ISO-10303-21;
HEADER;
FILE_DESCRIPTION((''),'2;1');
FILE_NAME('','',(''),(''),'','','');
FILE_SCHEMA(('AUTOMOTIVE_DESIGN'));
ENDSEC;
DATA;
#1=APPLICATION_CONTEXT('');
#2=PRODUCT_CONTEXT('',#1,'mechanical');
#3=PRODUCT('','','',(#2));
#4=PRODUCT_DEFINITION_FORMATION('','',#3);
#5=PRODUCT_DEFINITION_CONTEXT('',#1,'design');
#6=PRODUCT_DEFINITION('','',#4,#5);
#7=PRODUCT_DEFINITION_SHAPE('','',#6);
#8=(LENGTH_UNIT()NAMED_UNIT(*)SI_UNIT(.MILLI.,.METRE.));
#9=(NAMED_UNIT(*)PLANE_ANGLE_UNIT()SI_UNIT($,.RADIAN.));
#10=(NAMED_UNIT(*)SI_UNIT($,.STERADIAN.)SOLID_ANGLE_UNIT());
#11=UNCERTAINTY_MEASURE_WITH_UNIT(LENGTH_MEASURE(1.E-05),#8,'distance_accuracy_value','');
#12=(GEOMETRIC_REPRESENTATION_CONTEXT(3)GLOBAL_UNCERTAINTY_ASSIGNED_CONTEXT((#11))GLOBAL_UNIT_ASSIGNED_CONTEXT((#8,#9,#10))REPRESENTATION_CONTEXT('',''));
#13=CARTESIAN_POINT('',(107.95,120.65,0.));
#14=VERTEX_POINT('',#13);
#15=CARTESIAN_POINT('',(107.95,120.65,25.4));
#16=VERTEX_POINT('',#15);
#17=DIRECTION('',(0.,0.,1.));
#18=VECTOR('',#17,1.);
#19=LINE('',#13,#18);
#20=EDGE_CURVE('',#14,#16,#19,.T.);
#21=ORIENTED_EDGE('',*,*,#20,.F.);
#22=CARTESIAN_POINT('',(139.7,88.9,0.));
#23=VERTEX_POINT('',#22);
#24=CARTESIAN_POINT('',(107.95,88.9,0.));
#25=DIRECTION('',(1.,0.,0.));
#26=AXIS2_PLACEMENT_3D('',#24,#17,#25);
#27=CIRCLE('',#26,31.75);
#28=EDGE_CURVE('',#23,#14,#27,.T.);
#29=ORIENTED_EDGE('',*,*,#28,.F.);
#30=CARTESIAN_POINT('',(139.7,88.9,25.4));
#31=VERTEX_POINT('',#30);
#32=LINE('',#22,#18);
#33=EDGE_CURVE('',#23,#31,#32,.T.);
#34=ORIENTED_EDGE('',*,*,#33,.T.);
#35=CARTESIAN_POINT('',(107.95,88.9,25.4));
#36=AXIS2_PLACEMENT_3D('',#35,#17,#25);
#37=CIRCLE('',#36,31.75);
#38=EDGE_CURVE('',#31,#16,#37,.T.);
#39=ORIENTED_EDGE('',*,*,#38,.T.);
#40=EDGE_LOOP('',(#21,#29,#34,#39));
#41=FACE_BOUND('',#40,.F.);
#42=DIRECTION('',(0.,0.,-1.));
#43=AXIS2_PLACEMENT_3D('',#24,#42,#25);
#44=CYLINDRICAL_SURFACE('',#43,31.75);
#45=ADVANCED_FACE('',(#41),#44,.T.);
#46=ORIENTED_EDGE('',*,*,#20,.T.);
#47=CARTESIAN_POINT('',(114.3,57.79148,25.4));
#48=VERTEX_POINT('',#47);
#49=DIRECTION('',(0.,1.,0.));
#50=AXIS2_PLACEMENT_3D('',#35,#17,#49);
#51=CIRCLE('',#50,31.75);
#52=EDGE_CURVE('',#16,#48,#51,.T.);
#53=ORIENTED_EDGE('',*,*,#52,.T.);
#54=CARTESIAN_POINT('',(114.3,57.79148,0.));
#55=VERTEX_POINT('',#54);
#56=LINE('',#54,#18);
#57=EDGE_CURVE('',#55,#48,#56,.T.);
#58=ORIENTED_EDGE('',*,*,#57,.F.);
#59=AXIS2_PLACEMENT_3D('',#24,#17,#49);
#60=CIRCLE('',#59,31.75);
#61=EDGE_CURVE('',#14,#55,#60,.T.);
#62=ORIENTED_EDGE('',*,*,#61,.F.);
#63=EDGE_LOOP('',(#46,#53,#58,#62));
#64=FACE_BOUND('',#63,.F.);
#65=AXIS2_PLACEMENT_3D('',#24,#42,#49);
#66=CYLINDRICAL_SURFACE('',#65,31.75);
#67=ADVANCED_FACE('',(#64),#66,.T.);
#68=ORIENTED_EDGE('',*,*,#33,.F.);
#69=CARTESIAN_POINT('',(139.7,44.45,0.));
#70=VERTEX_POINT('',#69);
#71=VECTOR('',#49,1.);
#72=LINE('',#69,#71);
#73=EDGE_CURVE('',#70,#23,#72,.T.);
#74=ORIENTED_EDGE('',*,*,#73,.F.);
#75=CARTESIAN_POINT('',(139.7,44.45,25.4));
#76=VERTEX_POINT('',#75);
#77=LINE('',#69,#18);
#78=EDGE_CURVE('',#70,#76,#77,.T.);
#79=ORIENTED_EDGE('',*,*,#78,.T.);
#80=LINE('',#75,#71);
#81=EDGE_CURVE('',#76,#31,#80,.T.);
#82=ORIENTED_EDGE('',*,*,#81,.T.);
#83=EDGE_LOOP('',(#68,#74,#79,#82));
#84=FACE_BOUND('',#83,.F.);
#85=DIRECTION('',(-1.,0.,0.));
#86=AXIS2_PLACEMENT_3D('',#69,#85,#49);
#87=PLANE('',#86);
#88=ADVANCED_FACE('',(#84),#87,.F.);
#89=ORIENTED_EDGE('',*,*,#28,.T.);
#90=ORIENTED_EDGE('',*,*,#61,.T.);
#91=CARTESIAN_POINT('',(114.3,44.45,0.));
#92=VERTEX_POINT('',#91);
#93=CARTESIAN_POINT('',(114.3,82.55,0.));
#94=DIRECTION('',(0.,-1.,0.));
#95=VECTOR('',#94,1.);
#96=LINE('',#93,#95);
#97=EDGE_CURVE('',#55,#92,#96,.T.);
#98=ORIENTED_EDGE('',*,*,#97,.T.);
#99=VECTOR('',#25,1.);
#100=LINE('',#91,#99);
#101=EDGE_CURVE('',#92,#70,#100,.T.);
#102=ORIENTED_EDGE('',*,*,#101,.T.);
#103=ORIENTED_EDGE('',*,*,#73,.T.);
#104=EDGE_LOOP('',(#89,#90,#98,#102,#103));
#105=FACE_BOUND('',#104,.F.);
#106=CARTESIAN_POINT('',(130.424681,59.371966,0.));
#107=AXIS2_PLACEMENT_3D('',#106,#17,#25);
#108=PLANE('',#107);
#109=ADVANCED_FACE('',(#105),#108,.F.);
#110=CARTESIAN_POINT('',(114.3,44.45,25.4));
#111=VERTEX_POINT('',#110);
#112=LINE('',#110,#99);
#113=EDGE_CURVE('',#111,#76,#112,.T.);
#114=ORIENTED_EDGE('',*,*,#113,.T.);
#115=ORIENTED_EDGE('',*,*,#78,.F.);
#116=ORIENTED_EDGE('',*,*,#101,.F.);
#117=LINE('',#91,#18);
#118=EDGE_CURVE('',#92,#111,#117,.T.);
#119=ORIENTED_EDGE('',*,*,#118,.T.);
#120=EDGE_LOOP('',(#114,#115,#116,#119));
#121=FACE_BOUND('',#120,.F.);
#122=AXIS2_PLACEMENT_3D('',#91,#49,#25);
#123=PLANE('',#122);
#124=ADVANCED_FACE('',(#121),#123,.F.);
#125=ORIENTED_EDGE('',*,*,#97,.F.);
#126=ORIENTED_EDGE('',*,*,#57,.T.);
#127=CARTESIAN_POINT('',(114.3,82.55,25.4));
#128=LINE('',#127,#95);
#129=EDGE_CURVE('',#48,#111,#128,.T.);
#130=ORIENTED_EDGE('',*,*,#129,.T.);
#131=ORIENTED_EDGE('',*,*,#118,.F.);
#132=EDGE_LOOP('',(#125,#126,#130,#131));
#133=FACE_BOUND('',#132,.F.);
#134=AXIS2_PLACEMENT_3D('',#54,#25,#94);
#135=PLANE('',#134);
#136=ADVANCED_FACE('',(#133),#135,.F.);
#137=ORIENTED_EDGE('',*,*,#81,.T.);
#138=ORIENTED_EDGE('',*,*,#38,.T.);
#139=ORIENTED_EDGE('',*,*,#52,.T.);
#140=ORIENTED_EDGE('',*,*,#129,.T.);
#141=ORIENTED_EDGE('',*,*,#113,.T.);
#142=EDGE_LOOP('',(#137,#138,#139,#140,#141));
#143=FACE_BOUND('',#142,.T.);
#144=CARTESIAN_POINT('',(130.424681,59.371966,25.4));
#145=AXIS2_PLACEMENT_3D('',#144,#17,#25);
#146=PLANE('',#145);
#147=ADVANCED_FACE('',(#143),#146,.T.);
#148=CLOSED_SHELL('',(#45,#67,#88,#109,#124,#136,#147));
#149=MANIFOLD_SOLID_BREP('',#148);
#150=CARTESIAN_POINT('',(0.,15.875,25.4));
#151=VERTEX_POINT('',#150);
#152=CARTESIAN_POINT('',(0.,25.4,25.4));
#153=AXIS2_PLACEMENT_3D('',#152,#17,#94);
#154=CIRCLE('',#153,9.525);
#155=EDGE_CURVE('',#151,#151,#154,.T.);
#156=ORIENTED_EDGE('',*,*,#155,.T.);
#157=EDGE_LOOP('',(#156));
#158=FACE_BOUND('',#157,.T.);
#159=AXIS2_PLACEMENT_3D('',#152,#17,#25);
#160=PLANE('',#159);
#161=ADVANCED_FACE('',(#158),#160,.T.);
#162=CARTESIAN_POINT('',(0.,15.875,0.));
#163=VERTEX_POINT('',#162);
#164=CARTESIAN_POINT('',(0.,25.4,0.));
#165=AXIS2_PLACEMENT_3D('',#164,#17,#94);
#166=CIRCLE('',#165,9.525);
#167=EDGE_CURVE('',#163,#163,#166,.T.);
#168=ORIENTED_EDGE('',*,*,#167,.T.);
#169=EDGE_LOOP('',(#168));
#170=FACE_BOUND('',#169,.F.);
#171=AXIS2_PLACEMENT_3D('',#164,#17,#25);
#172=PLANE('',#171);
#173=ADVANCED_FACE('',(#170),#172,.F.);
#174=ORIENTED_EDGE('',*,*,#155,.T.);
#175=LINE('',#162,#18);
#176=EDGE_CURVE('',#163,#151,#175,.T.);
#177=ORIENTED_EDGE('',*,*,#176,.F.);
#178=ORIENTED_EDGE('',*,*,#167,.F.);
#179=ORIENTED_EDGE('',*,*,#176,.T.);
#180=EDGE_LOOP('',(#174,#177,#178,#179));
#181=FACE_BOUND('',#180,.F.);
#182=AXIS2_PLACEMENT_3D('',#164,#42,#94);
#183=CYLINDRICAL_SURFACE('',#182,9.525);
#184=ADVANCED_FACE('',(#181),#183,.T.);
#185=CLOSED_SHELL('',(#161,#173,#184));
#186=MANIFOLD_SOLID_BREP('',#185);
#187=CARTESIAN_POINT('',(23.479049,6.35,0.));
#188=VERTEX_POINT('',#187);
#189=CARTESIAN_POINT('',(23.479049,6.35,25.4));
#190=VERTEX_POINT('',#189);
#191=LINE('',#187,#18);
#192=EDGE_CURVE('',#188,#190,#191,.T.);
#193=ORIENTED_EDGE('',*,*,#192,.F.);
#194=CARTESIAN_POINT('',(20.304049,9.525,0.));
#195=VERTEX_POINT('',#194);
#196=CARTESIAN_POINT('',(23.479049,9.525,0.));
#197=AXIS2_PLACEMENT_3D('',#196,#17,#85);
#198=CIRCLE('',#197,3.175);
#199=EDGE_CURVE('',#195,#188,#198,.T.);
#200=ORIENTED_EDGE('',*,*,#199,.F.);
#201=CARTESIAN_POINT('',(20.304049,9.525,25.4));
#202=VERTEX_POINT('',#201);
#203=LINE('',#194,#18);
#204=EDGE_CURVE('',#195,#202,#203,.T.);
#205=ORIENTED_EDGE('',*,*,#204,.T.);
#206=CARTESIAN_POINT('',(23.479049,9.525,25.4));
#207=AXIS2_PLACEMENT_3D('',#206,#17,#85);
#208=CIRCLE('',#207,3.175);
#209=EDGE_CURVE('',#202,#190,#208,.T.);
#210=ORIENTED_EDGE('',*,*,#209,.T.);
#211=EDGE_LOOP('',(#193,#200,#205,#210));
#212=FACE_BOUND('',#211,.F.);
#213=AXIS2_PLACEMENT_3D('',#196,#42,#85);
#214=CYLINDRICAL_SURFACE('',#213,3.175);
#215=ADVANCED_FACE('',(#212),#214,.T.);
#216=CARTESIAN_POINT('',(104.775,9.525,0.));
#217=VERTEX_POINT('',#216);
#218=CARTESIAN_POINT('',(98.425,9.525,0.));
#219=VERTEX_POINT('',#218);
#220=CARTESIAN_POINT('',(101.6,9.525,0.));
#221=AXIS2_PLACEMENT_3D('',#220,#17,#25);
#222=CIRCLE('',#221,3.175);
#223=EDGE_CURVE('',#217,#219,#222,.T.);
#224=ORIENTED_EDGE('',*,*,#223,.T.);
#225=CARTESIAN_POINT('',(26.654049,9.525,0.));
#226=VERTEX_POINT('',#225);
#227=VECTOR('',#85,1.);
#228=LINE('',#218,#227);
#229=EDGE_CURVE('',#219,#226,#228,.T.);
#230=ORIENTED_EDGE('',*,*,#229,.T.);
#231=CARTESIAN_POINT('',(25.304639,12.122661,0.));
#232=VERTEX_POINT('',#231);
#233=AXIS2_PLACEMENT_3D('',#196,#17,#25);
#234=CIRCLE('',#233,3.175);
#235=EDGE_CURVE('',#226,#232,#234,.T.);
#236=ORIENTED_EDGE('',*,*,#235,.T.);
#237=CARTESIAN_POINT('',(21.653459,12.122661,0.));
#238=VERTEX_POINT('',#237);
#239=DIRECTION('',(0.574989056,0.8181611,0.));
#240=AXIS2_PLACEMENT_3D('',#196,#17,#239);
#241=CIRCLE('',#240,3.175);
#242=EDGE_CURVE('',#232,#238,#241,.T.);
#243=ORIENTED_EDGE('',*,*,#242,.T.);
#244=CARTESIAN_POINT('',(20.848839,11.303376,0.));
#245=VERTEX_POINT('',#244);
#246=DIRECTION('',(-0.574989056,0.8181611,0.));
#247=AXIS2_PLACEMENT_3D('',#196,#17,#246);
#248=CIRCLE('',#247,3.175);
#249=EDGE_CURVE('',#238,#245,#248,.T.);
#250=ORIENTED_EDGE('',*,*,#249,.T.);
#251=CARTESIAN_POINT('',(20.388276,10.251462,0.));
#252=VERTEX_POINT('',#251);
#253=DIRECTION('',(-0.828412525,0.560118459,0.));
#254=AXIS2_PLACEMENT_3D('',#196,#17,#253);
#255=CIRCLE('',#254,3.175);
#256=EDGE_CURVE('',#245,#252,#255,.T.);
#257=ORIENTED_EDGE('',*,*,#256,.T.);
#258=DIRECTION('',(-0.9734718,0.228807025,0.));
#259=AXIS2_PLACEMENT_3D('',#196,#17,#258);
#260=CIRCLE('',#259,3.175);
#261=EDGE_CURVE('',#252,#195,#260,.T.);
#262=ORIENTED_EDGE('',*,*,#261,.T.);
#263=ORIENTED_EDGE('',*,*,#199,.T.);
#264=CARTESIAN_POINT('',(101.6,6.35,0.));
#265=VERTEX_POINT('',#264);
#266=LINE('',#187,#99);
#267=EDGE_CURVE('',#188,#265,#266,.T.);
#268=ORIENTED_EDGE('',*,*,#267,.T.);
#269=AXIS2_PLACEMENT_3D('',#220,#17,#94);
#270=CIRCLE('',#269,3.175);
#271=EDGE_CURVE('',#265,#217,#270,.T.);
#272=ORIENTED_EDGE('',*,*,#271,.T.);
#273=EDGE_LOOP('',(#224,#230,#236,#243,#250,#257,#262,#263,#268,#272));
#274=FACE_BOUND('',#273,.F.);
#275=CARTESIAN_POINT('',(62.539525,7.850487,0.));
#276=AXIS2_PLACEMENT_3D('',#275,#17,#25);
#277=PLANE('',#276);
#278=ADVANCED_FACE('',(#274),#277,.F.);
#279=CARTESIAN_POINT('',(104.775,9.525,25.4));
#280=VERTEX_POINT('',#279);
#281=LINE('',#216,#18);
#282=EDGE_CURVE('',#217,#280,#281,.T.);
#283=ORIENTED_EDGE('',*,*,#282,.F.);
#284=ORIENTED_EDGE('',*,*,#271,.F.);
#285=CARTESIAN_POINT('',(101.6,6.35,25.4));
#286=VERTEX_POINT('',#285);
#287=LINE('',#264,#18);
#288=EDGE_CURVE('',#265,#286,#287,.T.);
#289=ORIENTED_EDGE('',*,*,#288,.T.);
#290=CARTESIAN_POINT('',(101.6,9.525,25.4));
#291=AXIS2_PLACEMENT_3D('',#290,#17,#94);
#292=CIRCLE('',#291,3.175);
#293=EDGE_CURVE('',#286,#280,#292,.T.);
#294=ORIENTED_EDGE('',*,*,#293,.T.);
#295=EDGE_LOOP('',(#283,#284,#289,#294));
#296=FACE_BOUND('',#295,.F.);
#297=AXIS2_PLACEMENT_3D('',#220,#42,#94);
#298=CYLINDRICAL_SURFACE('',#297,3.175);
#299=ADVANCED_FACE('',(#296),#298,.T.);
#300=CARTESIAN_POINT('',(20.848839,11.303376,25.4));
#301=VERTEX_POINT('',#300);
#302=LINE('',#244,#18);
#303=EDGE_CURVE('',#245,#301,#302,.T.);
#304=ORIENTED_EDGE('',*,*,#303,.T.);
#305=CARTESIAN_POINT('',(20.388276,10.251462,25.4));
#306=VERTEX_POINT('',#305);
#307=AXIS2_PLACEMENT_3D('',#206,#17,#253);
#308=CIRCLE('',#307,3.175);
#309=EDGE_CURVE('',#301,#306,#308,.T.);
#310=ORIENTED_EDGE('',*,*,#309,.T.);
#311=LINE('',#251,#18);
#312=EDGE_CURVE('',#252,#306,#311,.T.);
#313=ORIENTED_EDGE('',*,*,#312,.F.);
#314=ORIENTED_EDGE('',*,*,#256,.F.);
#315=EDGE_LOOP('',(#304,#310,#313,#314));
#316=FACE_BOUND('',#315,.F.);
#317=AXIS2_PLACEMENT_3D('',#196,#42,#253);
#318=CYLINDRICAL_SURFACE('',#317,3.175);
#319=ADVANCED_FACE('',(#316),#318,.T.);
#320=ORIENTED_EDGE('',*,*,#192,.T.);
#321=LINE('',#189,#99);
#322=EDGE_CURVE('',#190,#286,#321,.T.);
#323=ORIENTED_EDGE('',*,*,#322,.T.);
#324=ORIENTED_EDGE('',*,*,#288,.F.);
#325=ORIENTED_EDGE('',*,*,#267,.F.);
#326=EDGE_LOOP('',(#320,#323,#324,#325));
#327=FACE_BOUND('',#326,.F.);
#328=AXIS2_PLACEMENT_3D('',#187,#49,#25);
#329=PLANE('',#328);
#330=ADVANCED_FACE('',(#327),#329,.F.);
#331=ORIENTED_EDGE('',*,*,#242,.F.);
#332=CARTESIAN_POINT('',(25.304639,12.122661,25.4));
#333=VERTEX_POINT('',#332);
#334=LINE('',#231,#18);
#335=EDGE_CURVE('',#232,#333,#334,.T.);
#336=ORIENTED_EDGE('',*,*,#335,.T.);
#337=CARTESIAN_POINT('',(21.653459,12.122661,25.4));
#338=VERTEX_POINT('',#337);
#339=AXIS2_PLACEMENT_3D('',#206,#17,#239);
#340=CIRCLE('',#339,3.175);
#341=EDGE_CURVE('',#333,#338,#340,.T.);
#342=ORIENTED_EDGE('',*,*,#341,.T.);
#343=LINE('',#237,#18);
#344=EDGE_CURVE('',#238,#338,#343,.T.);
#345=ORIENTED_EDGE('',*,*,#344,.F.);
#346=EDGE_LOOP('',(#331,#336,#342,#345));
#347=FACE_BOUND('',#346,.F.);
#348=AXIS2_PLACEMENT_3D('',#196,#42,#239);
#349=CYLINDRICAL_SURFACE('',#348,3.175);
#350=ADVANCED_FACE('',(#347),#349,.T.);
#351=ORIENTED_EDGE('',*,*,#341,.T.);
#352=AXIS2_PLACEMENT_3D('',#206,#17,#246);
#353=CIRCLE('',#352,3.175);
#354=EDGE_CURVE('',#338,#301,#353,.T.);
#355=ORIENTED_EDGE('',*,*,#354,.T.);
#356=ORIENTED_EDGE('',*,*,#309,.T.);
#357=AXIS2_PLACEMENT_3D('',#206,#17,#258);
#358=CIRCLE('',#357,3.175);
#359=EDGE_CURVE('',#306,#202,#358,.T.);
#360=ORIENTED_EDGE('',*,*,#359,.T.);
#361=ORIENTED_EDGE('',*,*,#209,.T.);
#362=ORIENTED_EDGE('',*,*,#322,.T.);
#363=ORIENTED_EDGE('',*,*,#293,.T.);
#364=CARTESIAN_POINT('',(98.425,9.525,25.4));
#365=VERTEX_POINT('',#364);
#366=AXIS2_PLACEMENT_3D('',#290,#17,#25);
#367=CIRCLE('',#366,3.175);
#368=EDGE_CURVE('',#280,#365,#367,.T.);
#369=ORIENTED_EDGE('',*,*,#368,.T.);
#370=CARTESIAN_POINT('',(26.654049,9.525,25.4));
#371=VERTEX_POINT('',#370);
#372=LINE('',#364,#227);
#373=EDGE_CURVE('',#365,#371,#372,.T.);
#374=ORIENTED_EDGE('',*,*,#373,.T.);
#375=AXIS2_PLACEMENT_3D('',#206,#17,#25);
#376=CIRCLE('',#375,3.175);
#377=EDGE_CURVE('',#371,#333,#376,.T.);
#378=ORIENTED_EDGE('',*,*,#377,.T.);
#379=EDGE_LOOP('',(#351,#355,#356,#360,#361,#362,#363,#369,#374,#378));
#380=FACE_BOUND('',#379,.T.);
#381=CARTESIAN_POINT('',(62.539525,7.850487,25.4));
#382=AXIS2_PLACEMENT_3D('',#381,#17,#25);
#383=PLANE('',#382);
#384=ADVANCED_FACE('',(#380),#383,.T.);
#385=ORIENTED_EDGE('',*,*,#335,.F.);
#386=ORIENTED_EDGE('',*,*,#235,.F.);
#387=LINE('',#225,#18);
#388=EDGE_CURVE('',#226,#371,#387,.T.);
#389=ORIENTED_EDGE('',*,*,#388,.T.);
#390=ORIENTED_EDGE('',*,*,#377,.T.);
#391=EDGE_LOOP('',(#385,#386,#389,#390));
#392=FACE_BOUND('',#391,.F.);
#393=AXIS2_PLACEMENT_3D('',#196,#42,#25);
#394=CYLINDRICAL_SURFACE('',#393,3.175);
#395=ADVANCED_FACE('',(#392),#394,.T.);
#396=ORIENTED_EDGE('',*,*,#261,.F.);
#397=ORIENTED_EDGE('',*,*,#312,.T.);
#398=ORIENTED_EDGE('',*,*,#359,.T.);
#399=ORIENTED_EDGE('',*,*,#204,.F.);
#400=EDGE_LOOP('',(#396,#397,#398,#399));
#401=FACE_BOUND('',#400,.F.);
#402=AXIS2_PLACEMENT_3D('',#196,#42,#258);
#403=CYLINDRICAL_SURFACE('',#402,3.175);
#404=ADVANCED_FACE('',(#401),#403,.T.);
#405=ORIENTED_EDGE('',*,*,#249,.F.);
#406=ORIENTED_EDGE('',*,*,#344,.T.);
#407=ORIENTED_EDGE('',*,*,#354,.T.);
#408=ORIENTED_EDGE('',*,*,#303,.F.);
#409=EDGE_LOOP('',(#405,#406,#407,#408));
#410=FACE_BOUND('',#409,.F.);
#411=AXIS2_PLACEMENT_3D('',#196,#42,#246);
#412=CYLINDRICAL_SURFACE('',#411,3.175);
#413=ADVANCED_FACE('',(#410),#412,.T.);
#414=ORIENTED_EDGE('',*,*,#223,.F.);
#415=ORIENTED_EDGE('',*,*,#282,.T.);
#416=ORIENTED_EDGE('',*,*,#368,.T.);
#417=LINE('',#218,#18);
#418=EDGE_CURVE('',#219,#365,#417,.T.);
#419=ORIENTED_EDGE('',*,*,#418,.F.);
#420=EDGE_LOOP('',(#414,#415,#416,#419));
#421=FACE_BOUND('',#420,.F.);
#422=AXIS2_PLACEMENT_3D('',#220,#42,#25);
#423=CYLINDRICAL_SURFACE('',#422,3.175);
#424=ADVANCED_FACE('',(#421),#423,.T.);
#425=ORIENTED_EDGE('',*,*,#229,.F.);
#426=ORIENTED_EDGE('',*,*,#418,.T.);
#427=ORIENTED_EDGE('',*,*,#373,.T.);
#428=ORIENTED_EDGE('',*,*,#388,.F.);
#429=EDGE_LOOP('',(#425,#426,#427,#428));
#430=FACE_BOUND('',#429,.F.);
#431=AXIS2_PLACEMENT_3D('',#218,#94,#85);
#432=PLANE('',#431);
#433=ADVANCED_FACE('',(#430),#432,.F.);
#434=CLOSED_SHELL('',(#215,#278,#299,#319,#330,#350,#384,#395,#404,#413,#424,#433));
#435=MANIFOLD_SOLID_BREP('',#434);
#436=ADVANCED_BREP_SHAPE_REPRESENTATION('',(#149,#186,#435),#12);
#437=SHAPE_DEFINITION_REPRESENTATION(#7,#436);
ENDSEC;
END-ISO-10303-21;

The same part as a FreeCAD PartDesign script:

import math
import FreeCAD as App
import Part
import Sketcher

V = App.Vector
Q = App.Units.Quantity

doc = App.newDocument("Part")
body = doc.addObject("PartDesign::Body", "Body")

sketch1 = body.newObject("Sketcher::SketchObject", "Sketch")
sketch1.AttachmentSupport = (doc.getObject("XY_Plane"), [""])
sketch1.MapMode = "FlatFace"
sketch1.addGeometry(Part.Circle(V(0, 25, 0), V(0, 0, 1), 10), False)
sketch1.addConstraint([
    Sketcher.Constraint("PointOnObject", 0, 3, -2),
    Sketcher.Constraint("Diameter", 0, Q("0.75 in")),
    Sketcher.Constraint("DistanceY", -1, 1, 0, 3, Q("1 in")),
])
pad1 = body.newObject("PartDesign::Pad", "Pad")
pad1.Profile = sketch1
pad1.Length = Q("1 in")
body2 = doc.addObject("PartDesign::Body", "Body001")

sketch2 = body2.newObject("Sketcher::SketchObject", "Sketch001")
sketch2.AttachmentSupport = (doc.getObject("XY_Plane001"), [""])
sketch2.MapMode = "FlatFace"
sketch2.addGeometry([
    Part.LineSegment(V(23.5, 6.3, 0), V(101.6, 6.3, 0)),
    Part.ArcOfCircle(Part.Circle(V(101.6, 9.5, 0), V(0, 0, 1), 3.2), math.radians(-90), math.radians(0)),
    Part.ArcOfCircle(Part.Circle(V(101.6, 9.5, 0), V(0, 0, 1), 3.2), math.radians(0), math.radians(180)),
    Part.LineSegment(V(98.4, 9.5, 0), V(26.7, 9.5, 0)),
    Part.ArcOfCircle(Part.Circle(V(23.5, 9.5, 0), V(0, 0, 1), 3.2), math.radians(0), math.radians(55)),
    Part.ArcOfCircle(Part.Circle(V(23.5, 9.5, 0), V(0, 0, 1), 3.2), math.radians(55), math.radians(125)),
    Part.ArcOfCircle(Part.Circle(V(23.5, 9.5, 0), V(0, 0, 1), 3.2), math.radians(125), math.radians(146)),
    Part.ArcOfCircle(Part.Circle(V(23.5, 9.5, 0), V(0, 0, 1), 3.2), math.radians(146), math.radians(167)),
    Part.ArcOfCircle(Part.Circle(V(23.5, 9.5, 0), V(0, 0, 1), 3.2), math.radians(166.77), math.radians(180)),
    Part.ArcOfCircle(Part.Circle(V(23.5, 9.5, 0), V(0, 0, 1), 3.2), math.radians(180), math.radians(270)),
], False)
sketch2.addConstraint([
    Sketcher.Constraint("Tangent", 0, 2, 1, 1),
    Sketcher.Constraint("Tangent", 1, 2, 2, 1),
    Sketcher.Constraint("Coincident", 2, 2, 3, 1),
    Sketcher.Constraint("Coincident", 3, 2, 4, 1),
    Sketcher.Constraint("Tangent", 4, 2, 5, 1),
    Sketcher.Constraint("Tangent", 5, 2, 6, 1),
    Sketcher.Constraint("Tangent", 6, 2, 7, 1),
    Sketcher.Constraint("Tangent", 7, 2, 8, 1),
    Sketcher.Constraint("Tangent", 8, 2, 9, 1),
    Sketcher.Constraint("Tangent", 9, 2, 0, 1),
    Sketcher.Constraint("Horizontal", 0),
    Sketcher.Constraint("Horizontal", 3),
    Sketcher.Constraint("Coincident", 6, 3, 4, 3),
    Sketcher.Constraint("Coincident", 8, 3, 4, 3),
    Sketcher.Constraint("Equal", 1, 2),
    Sketcher.Constraint("Equal", 2, 4),
    Sketcher.Constraint("Equal", 8, 9),
    Sketcher.Constraint("Horizontal", 9, 3, 1, 2),
    Sketcher.Constraint("Horizontal", 1, 2, 2, 2),
    Sketcher.Constraint("Horizontal", 4, 2, 5, 2),
    Sketcher.Constraint("Horizontal", 3, 2, 8, 2),
    Sketcher.Constraint("DistanceX", -1, 1, 1, 3, Q("4 in")),
    Sketcher.Constraint("Radius", 1, Q("0.125 in")),
    Sketcher.Constraint("DistanceY", -1, 1, 0, 2, Q("0.25 in")),
    Sketcher.Constraint("DistanceX", 0, 1, 0, 2, 78.120951),
    Sketcher.Constraint("DistanceY", 7, 2, 5, 2, 1.871199),
    Sketcher.Constraint("DistanceX", -1, 1, 4, 2, 25.304639),
    Sketcher.Constraint("DistanceX", -1, 1, 6, 2, 20.848839),
])
pad2 = body2.newObject("PartDesign::Pad", "Pad001")
pad2.Profile = sketch2
pad2.Length = Q("1 in")
body3 = doc.addObject("PartDesign::Body", "Body002")

sketch3 = body3.newObject("Sketcher::SketchObject", "Sketch002")
sketch3.AttachmentSupport = (doc.getObject("XY_Plane002"), [""])
sketch3.MapMode = "FlatFace"
sketch3.addGeometry([
    Part.LineSegment(V(114, 44, 0), V(140, 44, 0)),
    Part.LineSegment(V(140, 44, 0), V(140, 89, 0)),
    Part.ArcOfCircle(Part.Circle(V(108, 89, 0), V(0, 0, 1), 32), math.radians(0), math.radians(90)),
    Part.ArcOfCircle(Part.Circle(V(108, 89, 0), V(0, 0, 1), 32), math.radians(90), math.radians(282)),
    Part.LineSegment(V(114, 58, 0), V(114, 44, 0)),
], False)
sketch3.addConstraint([
    Sketcher.Constraint("Coincident", 0, 2, 1, 1),
    Sketcher.Constraint("Tangent", 1, 2, 2, 1),
    Sketcher.Constraint("Tangent", 2, 2, 3, 1),
    Sketcher.Constraint("Coincident", 3, 2, 4, 1),
    Sketcher.Constraint("Coincident", 4, 2, 0, 1),
    Sketcher.Constraint("Horizontal", 0),
    Sketcher.Constraint("Vertical", 1),
    Sketcher.Constraint("Vertical", 4),
    Sketcher.Constraint("Equal", 2, 3),
    Sketcher.Constraint("Vertical", 3, 3, 2, 2),
    Sketcher.Constraint("DistanceX", 0, 1, 0, 2, Q("1 in")),
    Sketcher.Constraint("Radius", 2, Q("1.25 in")),
    Sketcher.Constraint("DistanceY", 0, 2, 2, 2, Q("3 in")),
    Sketcher.Constraint("DistanceY", -1, 1, 2, 3, Q("3.5 in")),
    Sketcher.Constraint("DistanceX", -1, 1, 0, 2, Q("5.5 in")),
])
pad3 = body3.newObject("PartDesign::Pad", "Pad002")
pad3.Profile = sketch3
pad3.Length = Q("1 in")

doc.recompute()
